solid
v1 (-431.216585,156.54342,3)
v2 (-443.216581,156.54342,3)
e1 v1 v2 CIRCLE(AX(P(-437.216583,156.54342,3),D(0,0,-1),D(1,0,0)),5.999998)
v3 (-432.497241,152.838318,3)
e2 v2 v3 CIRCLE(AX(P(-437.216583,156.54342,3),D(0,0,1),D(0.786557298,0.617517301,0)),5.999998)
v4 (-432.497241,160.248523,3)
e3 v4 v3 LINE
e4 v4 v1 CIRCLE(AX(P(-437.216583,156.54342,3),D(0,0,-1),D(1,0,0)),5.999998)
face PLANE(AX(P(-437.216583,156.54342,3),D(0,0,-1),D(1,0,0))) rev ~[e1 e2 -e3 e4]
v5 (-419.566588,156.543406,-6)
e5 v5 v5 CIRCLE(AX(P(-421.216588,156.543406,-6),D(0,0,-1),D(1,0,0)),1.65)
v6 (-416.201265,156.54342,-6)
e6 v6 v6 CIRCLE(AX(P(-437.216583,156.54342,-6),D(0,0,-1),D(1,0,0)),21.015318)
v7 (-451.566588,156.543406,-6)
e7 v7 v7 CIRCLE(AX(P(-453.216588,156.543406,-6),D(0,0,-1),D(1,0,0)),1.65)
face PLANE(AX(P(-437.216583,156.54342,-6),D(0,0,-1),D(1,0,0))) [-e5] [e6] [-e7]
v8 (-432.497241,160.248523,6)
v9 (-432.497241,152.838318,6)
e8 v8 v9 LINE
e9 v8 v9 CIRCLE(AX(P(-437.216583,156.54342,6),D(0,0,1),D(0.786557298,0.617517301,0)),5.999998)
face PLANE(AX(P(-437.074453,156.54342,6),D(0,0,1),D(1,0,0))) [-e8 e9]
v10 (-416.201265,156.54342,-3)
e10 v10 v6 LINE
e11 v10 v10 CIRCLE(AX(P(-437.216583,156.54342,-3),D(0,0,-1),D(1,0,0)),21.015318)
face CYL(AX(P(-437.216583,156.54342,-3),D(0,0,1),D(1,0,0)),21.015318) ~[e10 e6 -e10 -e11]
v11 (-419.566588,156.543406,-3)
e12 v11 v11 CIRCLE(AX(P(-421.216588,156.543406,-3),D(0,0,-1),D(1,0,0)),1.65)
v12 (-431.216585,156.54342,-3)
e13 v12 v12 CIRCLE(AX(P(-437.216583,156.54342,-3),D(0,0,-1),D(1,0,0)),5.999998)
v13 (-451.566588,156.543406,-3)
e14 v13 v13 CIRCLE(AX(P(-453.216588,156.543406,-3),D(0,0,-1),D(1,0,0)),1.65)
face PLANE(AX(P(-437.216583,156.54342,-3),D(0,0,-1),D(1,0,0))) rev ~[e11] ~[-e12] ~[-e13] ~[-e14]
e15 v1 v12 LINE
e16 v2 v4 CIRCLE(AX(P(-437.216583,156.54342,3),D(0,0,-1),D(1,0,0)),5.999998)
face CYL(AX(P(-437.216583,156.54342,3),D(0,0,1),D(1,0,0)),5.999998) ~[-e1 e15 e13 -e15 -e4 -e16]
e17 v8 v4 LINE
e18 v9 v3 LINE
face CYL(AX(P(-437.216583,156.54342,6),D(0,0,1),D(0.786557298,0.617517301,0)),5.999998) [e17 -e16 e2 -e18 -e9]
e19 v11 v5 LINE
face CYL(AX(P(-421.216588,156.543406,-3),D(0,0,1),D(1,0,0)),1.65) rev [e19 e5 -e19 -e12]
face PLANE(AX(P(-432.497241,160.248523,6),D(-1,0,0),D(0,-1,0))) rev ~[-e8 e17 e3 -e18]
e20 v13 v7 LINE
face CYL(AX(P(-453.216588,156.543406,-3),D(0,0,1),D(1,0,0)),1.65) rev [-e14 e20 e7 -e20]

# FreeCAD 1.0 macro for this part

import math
import FreeCAD as App
import Part
import Sketcher

V = App.Vector
Q = App.Units.Quantity

doc = App.newDocument("Part")
params = doc.addObject("Spreadsheet::Sheet", "Params")
for row, (alias, value) in enumerate([
    ("pad1_length", "6 mm"),
    ("pad2_length", "3 mm"),
    ("sketch3_diameter", "3.3 mm"),
    ("pad3_length", "3 mm"),
], start=1):
    params.set(f"A{row}", alias)
    params.set(f"B{row}", "=" + value)
    params.setAlias(f"B{row}", alias)

body = doc.addObject("PartDesign::Body", "Body")

# Sketch on XY plane
sketch1 = body.newObject("Sketcher::SketchObject", "Sketch")
sketch1.AttachmentSupport = (doc.getObject("XY_Plane"), [""])
sketch1.MapMode = "FlatFace"
sketch1.AttachmentOffset = App.Placement(V(0, 0, 3), App.Rotation())
sketch1.addGeometry(Part.Circle(V(-437.216583, 156.54342, 0), V(0, 0, 1), 5.999998), False)
sketch1.addConstraint([
    Sketcher.Constraint("Diameter", 0, Q("11.999996 mm")),
    Sketcher.Constraint("DistanceY", -1, 1, 0, 3, Q("156.54342 mm")),
    Sketcher.Constraint("DistanceX", 0, 3, -1, 1, Q("437.216583 mm")),
])
pad1 = body.newObject("PartDesign::Pad", "Pad")
pad1.Profile = sketch1
pad1.setExpression("Length", "Params.pad1_length")
pad1.Reversed = True
body2 = doc.addObject("PartDesign::Body", "Body001")

# Sketch on XY plane
sketch2 = body2.newObject("Sketcher::SketchObject", "Sketch001")
sketch2.AttachmentSupport = (doc.getObject("XY_Plane001"), [""])
sketch2.MapMode = "FlatFace"
sketch2.AttachmentOffset = App.Placement(V(0, 0, 6), App.Rotation())
sketch2.addGeometry([
    Part.ArcOfCircle(Part.Circle(V(-437.216583, 156.54342, 0), V(0, 0, 1), 5.999998), math.radians(38.13506), math.radians(321.86494)),
    Part.LineSegment(V(-432.497241, 152.838318, 0), V(-432.497241, 160.248523, 0)),
], False)
sketch2.addConstraint([
    Sketcher.Constraint("Coincident", 0, 1, 1, 2),
    Sketcher.Constraint("Coincident", 1, 1, 0, 2),
    Sketcher.Constraint("Vertical", 1),
    Sketcher.Constraint("Radius", 0, Q("5.999998 mm")),
    Sketcher.Constraint("DistanceY", 1, 1, 1, 2, Q("7.410205 mm")),
    Sketcher.Constraint("DistanceY", -1, 1, 0, 3, Q("156.54342 mm")),
    Sketcher.Constraint("DistanceX", 0, 1, -1, 1, Q("432.497241 mm")),
])
pad2 = body2.newObject("PartDesign::Pad", "Pad001")
pad2.Profile = sketch2
pad2.setExpression("Length", "Params.pad2_length")
pad2.Reversed = True
body3 = doc.addObject("PartDesign::Body", "Body002")

# Sketch on XY plane
sketch3 = body3.newObject("Sketcher::SketchObject", "Sketch002")
sketch3.AttachmentSupport = (doc.getObject("XY_Plane002"), [""])
sketch3.MapMode = "FlatFace"
sketch3.AttachmentOffset = App.Placement(V(0, 0, -3), App.Rotation())
sketch3.addGeometry([
    Part.Circle(V(-437.216583, 156.54342, 0), V(0, 0, 1), 21.015318),
    Part.Circle(V(-453.216588, 156.543406, 0), V(0, 0, 1), 1.65),
    Part.Circle(V(-421.216588, 156.543406, 0), V(0, 0, 1), 1.65),
], False)
sketch3.addConstraint([
    Sketcher.Constraint("Equal", 1, 2),
    Sketcher.Constraint("Horizontal", 1, 3, 2, 3),
    Sketcher.Constraint("Diameter", 1, Q("3.3 mm")),
    Sketcher.Constraint("DistanceX", 1, 3, 2, 3, Q("32 mm")),
    Sketcher.Constraint("Diameter", 0, Q("42.030636 mm")),
    Sketcher.Constraint("DistanceY", -1, 1, 0, 3, Q("156.54342 mm")),
    Sketcher.Constraint("DistanceX", 1, 3, -1, 1, Q("453.216588 mm")),
    Sketcher.Constraint("DistanceX", 0, 3, -1, 1, Q("437.216583 mm")),
    Sketcher.Constraint("DistanceY", -1, 1, 1, 3, Q("156.543406 mm")),
])
sketch3.setExpression("Constraints[2]", "Params.sketch3_diameter")
pad3 = body3.newObject("PartDesign::Pad", "Pad002")
pad3.Profile = sketch3
pad3.setExpression("Length", "Params.pad3_length")
pad3.Reversed = True
doc.recompute()

boolean = body3.newObject("PartDesign::Boolean", "Boolean")
boolean.Type = "Fuse"
boolean.addObjects([body])
doc.recompute()

boolean2 = body3.newObject("PartDesign::Boolean", "Boolean001")
boolean2.Type = "Fuse"
boolean2.addObjects([body2])

doc.recompute()
